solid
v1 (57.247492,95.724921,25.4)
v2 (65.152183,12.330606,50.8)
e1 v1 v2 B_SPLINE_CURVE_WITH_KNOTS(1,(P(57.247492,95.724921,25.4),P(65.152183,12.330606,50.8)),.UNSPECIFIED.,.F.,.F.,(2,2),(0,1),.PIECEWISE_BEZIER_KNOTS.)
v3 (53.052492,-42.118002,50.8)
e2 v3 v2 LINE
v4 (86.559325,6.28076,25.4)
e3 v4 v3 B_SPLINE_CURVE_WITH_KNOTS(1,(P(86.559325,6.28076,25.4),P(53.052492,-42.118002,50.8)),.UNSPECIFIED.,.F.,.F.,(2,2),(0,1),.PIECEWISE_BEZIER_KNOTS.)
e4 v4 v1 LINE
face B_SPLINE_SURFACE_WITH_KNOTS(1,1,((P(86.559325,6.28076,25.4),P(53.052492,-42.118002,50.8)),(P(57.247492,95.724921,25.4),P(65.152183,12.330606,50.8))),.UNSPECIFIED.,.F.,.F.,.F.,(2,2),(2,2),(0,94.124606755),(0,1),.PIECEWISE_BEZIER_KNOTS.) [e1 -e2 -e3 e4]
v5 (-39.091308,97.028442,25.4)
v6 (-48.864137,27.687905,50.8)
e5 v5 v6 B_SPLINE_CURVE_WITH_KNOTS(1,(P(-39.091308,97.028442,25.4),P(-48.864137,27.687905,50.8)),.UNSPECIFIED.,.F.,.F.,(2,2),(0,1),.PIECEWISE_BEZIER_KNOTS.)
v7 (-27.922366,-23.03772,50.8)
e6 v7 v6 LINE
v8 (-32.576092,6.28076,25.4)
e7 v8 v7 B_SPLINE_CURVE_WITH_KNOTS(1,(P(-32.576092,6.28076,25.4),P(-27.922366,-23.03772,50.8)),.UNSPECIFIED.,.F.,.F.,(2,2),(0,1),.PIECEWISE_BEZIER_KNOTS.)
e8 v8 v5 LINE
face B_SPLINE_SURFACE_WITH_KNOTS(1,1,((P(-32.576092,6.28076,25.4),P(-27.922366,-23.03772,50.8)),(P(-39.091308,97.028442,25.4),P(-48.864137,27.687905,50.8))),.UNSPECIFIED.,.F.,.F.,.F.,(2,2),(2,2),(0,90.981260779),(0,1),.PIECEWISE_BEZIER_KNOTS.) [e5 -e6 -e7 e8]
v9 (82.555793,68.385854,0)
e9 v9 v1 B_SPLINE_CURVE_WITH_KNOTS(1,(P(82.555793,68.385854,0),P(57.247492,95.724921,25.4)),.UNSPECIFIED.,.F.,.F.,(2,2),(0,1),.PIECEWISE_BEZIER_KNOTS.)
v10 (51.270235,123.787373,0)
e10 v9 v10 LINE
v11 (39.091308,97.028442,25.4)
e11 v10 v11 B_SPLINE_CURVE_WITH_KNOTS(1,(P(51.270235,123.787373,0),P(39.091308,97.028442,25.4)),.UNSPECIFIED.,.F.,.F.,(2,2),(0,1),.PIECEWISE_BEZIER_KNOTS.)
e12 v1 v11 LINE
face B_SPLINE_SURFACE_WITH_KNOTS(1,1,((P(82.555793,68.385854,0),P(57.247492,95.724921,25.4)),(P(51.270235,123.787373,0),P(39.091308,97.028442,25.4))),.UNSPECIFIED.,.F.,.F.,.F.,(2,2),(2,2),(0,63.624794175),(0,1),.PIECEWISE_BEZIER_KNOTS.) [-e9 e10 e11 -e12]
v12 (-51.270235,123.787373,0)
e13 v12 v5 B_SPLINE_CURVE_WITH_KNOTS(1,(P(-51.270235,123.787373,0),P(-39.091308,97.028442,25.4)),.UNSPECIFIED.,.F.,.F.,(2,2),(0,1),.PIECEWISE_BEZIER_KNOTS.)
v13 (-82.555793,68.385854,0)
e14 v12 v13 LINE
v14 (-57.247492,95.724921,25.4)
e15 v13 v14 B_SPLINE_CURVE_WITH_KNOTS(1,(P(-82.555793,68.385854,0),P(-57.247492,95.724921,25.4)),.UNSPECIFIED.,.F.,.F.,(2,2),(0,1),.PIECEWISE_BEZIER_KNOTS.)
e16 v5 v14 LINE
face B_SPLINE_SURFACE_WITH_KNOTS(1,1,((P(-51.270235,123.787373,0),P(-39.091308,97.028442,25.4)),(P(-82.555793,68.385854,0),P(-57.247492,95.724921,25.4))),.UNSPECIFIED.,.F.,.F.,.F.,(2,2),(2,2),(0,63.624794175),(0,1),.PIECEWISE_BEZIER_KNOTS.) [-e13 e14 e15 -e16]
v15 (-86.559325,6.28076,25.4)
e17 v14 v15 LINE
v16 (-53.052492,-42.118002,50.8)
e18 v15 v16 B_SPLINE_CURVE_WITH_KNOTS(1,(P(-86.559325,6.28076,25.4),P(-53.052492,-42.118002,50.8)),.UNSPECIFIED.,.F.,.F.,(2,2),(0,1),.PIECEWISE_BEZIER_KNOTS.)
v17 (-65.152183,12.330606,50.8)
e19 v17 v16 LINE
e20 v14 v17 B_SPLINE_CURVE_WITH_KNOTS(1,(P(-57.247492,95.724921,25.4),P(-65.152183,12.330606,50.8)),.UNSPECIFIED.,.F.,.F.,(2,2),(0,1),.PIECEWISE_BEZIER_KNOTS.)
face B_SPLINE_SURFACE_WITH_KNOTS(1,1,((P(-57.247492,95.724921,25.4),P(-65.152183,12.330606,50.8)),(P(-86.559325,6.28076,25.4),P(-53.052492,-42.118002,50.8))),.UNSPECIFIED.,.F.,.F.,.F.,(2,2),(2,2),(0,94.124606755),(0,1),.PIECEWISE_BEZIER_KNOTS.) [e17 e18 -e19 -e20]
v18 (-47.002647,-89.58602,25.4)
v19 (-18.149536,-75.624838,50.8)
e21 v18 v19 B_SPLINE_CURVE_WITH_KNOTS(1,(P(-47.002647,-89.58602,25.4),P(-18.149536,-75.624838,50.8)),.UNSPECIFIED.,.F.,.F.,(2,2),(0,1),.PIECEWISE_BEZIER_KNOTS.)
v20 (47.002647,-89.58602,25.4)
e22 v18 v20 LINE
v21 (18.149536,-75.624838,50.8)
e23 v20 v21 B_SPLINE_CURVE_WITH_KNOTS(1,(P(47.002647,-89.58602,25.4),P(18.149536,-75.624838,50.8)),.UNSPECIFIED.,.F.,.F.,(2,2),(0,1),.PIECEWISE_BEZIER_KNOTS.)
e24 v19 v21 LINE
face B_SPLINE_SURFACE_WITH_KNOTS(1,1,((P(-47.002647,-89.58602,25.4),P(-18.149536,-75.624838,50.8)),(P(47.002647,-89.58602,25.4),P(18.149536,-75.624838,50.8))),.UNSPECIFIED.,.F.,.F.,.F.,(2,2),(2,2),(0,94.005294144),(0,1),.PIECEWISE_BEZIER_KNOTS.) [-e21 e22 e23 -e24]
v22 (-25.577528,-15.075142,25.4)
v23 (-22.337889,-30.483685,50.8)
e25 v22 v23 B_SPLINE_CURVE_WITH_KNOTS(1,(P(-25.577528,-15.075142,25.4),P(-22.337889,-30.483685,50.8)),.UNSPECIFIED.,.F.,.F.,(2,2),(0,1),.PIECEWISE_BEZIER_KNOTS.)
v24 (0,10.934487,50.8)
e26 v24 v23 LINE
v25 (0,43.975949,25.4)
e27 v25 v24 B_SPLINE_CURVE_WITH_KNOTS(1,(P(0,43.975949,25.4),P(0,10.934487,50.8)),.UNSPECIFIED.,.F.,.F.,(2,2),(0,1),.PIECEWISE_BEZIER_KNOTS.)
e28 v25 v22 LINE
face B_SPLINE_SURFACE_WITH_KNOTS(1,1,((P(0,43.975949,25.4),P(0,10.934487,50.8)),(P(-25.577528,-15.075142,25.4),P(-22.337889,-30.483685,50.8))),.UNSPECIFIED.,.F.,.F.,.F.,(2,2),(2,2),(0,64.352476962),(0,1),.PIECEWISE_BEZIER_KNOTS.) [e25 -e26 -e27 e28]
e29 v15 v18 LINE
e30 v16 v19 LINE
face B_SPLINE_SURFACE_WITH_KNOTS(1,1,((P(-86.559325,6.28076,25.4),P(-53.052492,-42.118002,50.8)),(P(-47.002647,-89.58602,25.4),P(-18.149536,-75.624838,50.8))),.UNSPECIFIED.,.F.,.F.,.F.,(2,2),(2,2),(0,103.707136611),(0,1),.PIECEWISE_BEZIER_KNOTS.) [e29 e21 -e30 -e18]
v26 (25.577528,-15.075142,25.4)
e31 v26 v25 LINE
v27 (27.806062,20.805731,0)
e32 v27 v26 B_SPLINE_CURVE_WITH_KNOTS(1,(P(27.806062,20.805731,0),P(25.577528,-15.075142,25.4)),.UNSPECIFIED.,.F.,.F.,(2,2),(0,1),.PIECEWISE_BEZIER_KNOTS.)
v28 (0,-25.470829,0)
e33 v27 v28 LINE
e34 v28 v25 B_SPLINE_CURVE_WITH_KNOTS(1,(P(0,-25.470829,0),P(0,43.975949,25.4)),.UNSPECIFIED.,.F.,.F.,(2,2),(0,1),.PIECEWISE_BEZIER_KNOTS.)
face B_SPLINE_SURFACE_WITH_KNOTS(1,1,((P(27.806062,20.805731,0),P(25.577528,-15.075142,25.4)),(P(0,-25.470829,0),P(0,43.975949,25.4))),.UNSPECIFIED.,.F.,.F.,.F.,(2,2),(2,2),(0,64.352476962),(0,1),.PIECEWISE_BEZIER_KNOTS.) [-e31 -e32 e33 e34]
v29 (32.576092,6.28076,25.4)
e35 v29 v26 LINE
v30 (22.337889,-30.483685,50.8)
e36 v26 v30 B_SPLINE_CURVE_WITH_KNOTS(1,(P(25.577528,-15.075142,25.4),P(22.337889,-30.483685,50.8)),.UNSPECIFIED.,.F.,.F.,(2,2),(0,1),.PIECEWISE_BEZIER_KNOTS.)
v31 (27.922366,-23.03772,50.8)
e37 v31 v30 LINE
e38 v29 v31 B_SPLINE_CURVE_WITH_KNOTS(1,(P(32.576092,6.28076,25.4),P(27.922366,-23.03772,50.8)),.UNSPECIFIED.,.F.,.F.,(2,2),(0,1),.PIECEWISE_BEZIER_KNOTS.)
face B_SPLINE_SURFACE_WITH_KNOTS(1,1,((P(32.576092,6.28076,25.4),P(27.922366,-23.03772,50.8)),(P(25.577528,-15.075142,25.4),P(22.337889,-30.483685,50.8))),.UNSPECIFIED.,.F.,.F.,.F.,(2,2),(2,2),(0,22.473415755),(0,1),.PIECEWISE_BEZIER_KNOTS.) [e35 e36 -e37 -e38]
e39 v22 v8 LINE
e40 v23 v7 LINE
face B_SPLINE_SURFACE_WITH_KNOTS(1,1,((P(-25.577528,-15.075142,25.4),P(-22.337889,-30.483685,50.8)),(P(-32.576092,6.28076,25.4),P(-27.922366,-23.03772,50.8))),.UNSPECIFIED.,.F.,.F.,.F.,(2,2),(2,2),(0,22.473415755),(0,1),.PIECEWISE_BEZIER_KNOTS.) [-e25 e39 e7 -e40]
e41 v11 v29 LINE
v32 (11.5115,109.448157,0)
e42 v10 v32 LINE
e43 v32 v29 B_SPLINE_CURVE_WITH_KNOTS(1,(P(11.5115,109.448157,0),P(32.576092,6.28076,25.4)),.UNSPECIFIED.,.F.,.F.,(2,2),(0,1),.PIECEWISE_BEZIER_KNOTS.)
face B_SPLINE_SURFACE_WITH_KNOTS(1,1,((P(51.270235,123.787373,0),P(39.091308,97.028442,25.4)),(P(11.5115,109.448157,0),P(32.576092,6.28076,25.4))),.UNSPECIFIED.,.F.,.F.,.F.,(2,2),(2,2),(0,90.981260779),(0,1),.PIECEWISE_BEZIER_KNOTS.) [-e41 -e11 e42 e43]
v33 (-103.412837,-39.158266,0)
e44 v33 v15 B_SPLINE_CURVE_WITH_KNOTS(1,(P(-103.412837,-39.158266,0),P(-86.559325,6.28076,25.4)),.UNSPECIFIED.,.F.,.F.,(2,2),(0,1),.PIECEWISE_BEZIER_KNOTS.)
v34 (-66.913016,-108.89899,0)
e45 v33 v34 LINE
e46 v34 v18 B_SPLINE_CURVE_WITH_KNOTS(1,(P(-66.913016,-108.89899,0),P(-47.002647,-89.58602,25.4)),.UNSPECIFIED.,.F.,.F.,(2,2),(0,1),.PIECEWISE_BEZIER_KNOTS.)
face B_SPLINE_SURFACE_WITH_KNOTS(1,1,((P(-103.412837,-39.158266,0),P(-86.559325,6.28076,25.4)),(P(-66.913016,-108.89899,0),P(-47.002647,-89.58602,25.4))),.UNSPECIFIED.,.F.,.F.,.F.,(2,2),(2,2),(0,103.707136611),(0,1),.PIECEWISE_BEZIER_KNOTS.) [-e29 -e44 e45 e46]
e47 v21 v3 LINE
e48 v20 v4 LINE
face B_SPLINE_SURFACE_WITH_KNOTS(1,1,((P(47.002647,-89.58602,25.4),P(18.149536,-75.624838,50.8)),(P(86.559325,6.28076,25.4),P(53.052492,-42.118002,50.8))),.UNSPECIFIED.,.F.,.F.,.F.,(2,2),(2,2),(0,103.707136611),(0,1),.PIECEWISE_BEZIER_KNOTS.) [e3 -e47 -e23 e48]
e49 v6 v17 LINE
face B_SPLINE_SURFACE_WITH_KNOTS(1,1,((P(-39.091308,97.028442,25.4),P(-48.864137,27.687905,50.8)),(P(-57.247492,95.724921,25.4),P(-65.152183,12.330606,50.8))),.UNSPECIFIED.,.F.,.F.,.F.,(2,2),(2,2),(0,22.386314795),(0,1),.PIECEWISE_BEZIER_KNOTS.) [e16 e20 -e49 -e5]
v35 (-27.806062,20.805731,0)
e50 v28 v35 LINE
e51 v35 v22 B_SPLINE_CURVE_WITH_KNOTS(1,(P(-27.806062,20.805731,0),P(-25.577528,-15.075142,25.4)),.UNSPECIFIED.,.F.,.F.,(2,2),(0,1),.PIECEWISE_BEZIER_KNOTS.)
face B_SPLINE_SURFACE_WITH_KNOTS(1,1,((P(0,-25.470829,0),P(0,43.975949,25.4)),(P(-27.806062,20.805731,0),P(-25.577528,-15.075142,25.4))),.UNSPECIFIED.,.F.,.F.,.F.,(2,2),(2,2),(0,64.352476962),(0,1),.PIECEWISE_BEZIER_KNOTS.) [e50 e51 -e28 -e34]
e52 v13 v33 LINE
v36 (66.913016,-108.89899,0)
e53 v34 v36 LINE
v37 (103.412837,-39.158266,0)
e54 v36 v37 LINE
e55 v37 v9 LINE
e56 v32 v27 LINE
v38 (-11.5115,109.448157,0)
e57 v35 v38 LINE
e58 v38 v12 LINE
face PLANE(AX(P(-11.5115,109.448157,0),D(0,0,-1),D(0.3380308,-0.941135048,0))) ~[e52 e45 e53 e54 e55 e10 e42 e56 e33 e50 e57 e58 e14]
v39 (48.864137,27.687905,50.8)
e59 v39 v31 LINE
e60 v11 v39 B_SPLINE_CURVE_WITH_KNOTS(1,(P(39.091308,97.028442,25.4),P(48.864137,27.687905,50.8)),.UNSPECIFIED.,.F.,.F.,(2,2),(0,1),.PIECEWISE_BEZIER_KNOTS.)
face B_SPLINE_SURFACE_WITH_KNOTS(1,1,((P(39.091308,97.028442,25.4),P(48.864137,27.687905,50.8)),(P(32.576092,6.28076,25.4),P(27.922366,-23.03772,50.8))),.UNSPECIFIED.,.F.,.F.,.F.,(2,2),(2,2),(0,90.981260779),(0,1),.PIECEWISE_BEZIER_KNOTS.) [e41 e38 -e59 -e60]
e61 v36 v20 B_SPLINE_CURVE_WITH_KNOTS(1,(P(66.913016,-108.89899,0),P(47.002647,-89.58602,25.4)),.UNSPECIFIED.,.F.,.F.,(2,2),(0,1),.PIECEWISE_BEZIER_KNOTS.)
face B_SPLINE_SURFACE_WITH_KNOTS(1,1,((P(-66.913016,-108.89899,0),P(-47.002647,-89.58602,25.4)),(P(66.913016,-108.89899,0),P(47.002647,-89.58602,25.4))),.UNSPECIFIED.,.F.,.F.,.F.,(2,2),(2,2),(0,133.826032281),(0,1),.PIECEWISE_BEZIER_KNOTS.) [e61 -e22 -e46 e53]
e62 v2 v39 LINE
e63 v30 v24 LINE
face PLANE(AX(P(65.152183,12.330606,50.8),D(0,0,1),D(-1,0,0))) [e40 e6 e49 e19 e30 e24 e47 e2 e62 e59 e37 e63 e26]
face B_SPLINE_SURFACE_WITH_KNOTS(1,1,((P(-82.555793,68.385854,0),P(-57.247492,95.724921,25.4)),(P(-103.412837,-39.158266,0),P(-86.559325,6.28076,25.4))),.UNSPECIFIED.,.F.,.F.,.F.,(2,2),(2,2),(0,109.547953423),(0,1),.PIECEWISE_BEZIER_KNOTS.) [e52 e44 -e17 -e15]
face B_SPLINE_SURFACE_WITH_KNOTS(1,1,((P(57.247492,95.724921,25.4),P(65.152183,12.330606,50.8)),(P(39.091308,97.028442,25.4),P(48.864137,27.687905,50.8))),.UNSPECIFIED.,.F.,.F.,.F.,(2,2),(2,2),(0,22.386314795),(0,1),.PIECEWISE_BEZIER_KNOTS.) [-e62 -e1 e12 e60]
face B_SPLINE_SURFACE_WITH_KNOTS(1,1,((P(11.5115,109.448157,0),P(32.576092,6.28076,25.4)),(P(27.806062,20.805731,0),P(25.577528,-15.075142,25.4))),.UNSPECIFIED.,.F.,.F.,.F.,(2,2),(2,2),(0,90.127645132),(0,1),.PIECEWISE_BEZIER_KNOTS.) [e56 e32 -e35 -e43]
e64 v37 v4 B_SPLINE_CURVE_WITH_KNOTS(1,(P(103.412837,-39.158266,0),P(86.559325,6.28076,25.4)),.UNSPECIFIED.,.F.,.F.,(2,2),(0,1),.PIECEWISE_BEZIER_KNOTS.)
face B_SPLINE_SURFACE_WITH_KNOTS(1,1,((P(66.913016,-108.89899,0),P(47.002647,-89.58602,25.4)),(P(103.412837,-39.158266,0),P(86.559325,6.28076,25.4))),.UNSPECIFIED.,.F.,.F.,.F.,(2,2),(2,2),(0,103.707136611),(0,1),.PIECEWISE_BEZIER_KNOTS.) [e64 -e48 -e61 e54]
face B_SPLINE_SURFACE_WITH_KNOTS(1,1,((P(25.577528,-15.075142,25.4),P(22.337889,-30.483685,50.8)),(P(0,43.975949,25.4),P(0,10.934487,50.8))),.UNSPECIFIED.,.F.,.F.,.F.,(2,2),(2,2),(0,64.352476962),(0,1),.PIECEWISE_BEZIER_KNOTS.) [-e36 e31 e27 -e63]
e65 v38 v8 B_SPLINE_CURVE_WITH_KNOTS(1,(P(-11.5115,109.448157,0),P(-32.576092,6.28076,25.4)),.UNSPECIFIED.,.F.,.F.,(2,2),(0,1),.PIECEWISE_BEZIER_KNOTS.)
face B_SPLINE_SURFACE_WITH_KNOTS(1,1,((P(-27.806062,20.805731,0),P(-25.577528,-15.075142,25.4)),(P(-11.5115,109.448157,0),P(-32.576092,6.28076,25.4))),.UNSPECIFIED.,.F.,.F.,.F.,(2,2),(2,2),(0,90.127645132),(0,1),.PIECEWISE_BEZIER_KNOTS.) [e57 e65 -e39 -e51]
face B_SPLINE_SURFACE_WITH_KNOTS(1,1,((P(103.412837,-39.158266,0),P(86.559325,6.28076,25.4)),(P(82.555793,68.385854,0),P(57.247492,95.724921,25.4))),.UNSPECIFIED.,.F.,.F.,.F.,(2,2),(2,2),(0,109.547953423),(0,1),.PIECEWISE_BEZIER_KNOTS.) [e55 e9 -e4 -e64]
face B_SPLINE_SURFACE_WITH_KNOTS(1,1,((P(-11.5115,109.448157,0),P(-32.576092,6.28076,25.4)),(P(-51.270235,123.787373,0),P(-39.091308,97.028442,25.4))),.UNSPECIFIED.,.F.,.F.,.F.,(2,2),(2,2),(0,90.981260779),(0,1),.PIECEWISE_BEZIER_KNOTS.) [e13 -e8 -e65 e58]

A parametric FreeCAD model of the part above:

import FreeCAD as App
import Part
import Sketcher

V = App.Vector


def add_polygon(sketch, points):
    """Adds a closed chain of lines whose ends are joined by coincident constraints."""
    first, n = sketch.GeometryCount, len(points)
    for a, b in zip(points, points[1:] + points[:1]):
        sketch.addGeometry(Part.LineSegment(App.Vector(*a, 0), App.Vector(*b, 0)), False)
    for i in range(n):
        sketch.addConstraint(Sketcher.Constraint("Coincident", first + i, 2, first + (i + 1) % n, 1))

doc = App.newDocument("Part")
body = doc.addObject("PartDesign::Body", "Body")

# Sketch on XY plane
sketch1 = body.newObject("Sketcher::SketchObject", "Sketch")
sketch1.AttachmentSupport = (doc.getObject("XY_Plane"), [""])
sketch1.MapMode = "FlatFace"
add_polygon(sketch1, [(-12, 109), (-51, 124), (-83, 68), (-103, -39), (-67, -109), (67, -109), (103, -39), (83, 68), (51, 124), (12, 109), (28, 21), (0, -25), (-28, 21)])  # lines 0-12
sketch1.addConstraint([
    Sketcher.Constraint("Horizontal", 4),
    Sketcher.Constraint("Symmetric", 2, 2, 5, 2, -2),
    Sketcher.Constraint("Symmetric", 1, 2, 6, 2, -2),
    Sketcher.Constraint("Symmetric", 0, 2, 7, 2, -2),
    Sketcher.Constraint("Symmetric", 9, 2, 11, 2, -2),
    Sketcher.Constraint("Symmetric", 8, 2, 12, 2, -2),
    Sketcher.Constraint("PointOnObject", 10, 2, -2),
    Sketcher.Constraint("Equal", 3, 5),
    Sketcher.Constraint("DistanceX", 12, 2, 8, 2, 23.023),
    Sketcher.Constraint("DistanceX", 2, 2, 0, 2, 52.142601),
    Sketcher.Constraint("Distance", 3, 78.714709),
    Sketcher.Constraint("DistanceX", 4, 1, 4, 2, 133.826032),
    Sketcher.Constraint("DistanceY", 3, 2, -1, 1, 108.89899),
    Sketcher.Constraint("DistanceY", -1, 1, 9, 2, 20.805731),
    Sketcher.Constraint("DistanceY", 10, 2, -1, 1, 25.470829),
    Sketcher.Constraint("DistanceY", 1, 2, 0, 2, 55.401519),
    Sketcher.Constraint("DistanceY", 2, 2, 1, 2, 107.54412),
    Sketcher.Constraint("DistanceX", 2, 2, 3, 2, 36.499821),
    Sketcher.Constraint("DistanceX", 1, 2, 4, 2, 149.468809),
    Sketcher.Constraint("DistanceX", 9, 2, 6, 2, 54.749731),
    Sketcher.Constraint("Distance", 0, 42.265472),
])

# Sketch on XY plane
sketch2 = body.newObject("Sketcher::SketchObject", "Sketch001")
sketch2.AttachmentSupport = (doc.getObject("XY_Plane"), [""])
sketch2.MapMode = "FlatFace"
sketch2.AttachmentOffset = App.Placement(V(0, 0, 25.4), App.Rotation())
add_polygon(sketch2, [(-26, -15), (-33, 6), (-39, 97), (-57, 96), (-87, 6), (-47, -90), (47, -90), (87, 6), (57, 96), (39, 97), (33, 6), (26, -15), (0, 44)])  # lines 0-12
sketch2.addConstraint([
    Sketcher.Constraint("Horizontal", 5),
    Sketcher.Constraint("Symmetric", 3, 2, 6, 2, -2),
    Sketcher.Constraint("Symmetric", 2, 2, 7, 2, -2),
    Sketcher.Constraint("Symmetric", 1, 2, 8, 2, -2),
    Sketcher.Constraint("Symmetric", 0, 2, 9, 2, -2),
    Sketcher.Constraint("Symmetric", 10, 2, 12, 2, -2),
    Sketcher.Constraint("PointOnObject", 11, 2, -2),
    Sketcher.Constraint("Perpendicular", 1, 2),
    Sketcher.Constraint("Parallel", 0, 7),
    Sketcher.Constraint("Horizontal", 0, 2, 3, 2),
    Sketcher.Constraint("Equal", 4, 6),
    Sketcher.Constraint("DistanceX", 2, 2, 0, 2, 24.6714),
    Sketcher.Constraint("DistanceX", 1, 2, 7, 2, 96.3388),
    Sketcher.Constraint("DistanceY", 10, 2, 9, 2, 21.355901),
    Sketcher.Constraint("Distance", 1, 90.981261),
    Sketcher.Constraint("DistanceX", 5, 1, 5, 2, 94.005294),
    Sketcher.Constraint("DistanceX", 0, 2, -1, 1, 32.576092),
    Sketcher.Constraint("DistanceY", -1, 1, 0, 2, 6.28076),
    Sketcher.Constraint("DistanceY", 4, 2, -1, 1, 89.58602),
    Sketcher.Constraint("DistanceX", -1, 1, 10, 2, 25.577528),
    Sketcher.Constraint("DistanceY", -1, 1, 11, 2, 43.975949),
])

additiveloft = body.newObject("PartDesign::AdditiveLoft", "AdditiveLoft")
additiveloft.Profile = sketch1
additiveloft.Sections = [sketch2]

# Sketch on XY plane
sketch3 = body.newObject("Sketcher::SketchObject", "Sketch002")
sketch3.AttachmentSupport = (doc.getObject("XY_Plane"), [""])
sketch3.MapMode = "FlatFace"
sketch3.AttachmentOffset = App.Placement(V(0, 0, 25.4), App.Rotation())
add_polygon(sketch3, [(57, 96), (39, 97), (33, 6), (26, -15), (0, 44), (-26, -15), (-33, 6), (-39, 97), (-57, 96), (-87, 6), (-47, -90), (47, -90), (87, 6)])  # lines 0-12
sketch3.addConstraint([
    Sketcher.Constraint("Horizontal", 10),
    Sketcher.Constraint("Symmetric", 2, 2, 4, 2, -2),
    Sketcher.Constraint("Symmetric", 1, 2, 5, 2, -2),
    Sketcher.Constraint("Symmetric", 0, 2, 6, 2, -2),
    Sketcher.Constraint("Symmetric", 8, 2, 11, 2, -2),
    Sketcher.Constraint("Symmetric", 7, 2, 12, 2, -2),
    Sketcher.Constraint("PointOnObject", 3, 2, -2),
    Sketcher.Constraint("Perpendicular", 0, 1),
    Sketcher.Constraint("Parallel", 2, 8),
    Sketcher.Constraint("Horizontal", 5, 2, 8, 2),
    Sketcher.Constraint("Equal", 9, 11),
    Sketcher.Constraint("DistanceY", 2, 2, 1, 2, 21.355901),
    Sketcher.Constraint("DistanceX", 5, 2, 0, 2, 71.667399),
    Sketcher.Constraint("DistanceX", 7, 2, 5, 2, 24.6714),
    Sketcher.Constraint("Distance", 1, 90.981261),
    Sketcher.Constraint("DistanceX", 10, 1, 10, 2, 94.005294),
    Sketcher.Constraint("DistanceY", -1, 1, 0, 2, 97.028442),
    Sketcher.Constraint("DistanceX", -1, 1, 1, 2, 32.576092),
    Sketcher.Constraint("DistanceX", -1, 1, 2, 2, 25.577528),
    Sketcher.Constraint("DistanceY", -1, 1, 3, 2, 43.975949),
    Sketcher.Constraint("DistanceY", 9, 2, -1, 1, 89.58602),
])

# Sketch on XY plane
sketch4 = body.newObject("Sketcher::SketchObject", "Sketch003")
sketch4.AttachmentSupport = (doc.getObject("XY_Plane"), [""])
sketch4.MapMode = "FlatFace"
sketch4.AttachmentOffset = App.Placement(V(0, 0, 50.8), App.Rotation())
add_polygon(sketch4, [(22, -30), (0, 11), (-22, -30), (-28, -23), (-49, 28), (-65, 12), (-53, -42), (-18, -76), (18, -76), (53, -42), (65, 12), (49, 28), (28, -23)])  # lines 0-12
sketch4.addConstraint([
    Sketcher.Constraint("Horizontal", 7),
    Sketcher.Constraint("Symmetric", 5, 2, 8, 2, -2),
    Sketcher.Constraint("Symmetric", 4, 2, 9, 2, -2),
    Sketcher.Constraint("Symmetric", 3, 2, 10, 2, -2),
    Sketcher.Constraint("Symmetric", 2, 2, 11, 2, -2),
    Sketcher.Constraint("Symmetric", 1, 2, 12, 2, -2),
    Sketcher.Constraint("PointOnObject", 0, 2, -2),
    Sketcher.Constraint("Equal", 6, 8),
    Sketcher.Constraint("DistanceY", 5, 2, -1, 1, 42.118002),
    Sketcher.Constraint("Distance", 6, 48.383101),
    Sketcher.Constraint("DistanceY", 4, 2, 3, 2, 15.3573),
    Sketcher.Constraint("DistanceX", 2, 2, 7, 2, 46.071902),
    Sketcher.Constraint("DistanceX", 7, 1, 7, 2, 36.299072),
    Sketcher.Constraint("DistanceX", 1, 2, -1, 1, 22.337889),
    Sketcher.Constraint("DistanceY", 2, 2, -1, 1, 23.03772),
    Sketcher.Constraint("DistanceY", 6, 2, -1, 1, 75.624838),
    Sketcher.Constraint("DistanceY", 0, 2, 3, 2, 16.753418),
    Sketcher.Constraint("DistanceX", 3, 2, 2, 2, 20.941772),
    Sketcher.Constraint("DistanceY", 1, 2, 3, 2, 58.171591),
    Sketcher.Constraint("DistanceX", 4, 2, 5, 2, 12.099691),
    Sketcher.Constraint("DistanceY", 5, 2, 0, 2, 53.052489),
])

additiveloft2 = body.newObject("PartDesign::AdditiveLoft", "AdditiveLoft001")
additiveloft2.Profile = sketch3
additiveloft2.Sections = [sketch4]

doc.recompute()
